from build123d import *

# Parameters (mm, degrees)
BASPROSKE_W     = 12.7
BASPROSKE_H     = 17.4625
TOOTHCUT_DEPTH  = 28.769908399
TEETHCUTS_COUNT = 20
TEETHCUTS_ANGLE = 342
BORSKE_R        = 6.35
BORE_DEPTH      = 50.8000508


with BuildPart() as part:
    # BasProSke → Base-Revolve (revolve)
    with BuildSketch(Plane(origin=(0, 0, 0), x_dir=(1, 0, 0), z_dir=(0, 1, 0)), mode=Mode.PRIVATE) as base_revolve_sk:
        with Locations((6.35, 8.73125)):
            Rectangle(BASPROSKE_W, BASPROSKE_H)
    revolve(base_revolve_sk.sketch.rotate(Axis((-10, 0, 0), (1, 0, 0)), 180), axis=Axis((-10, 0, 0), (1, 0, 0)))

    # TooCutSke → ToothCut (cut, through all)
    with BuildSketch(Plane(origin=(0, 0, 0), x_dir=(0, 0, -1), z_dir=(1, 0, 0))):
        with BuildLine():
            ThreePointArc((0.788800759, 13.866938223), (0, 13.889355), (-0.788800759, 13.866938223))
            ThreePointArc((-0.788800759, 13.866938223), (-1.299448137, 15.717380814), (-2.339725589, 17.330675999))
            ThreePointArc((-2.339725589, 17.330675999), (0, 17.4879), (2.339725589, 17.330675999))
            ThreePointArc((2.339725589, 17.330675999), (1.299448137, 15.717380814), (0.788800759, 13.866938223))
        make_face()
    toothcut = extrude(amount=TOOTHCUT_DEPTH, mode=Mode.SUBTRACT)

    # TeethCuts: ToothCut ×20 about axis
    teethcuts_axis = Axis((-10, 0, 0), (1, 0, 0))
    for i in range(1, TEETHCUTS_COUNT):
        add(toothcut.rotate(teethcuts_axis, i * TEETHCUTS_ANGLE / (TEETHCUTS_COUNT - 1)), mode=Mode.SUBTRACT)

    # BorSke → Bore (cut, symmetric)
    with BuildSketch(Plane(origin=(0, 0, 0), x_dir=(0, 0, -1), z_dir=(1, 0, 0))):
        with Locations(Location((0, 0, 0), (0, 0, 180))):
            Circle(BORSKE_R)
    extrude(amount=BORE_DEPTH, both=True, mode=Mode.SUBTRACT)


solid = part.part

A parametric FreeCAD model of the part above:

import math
import FreeCAD as App
import Part
import Sketcher
from FreeCAD import Vector
Q = App.Units.Quantity


def add_polygon(sketch, points):
    """Adds a closed chain of lines whose ends are joined by coincident constraints."""
    first, n = sketch.GeometryCount, len(points)
    for a, b in zip(points, points[1:] + points[:1]):
        sketch.addGeometry(Part.LineSegment(App.Vector(*a, 0), App.Vector(*b, 0)), False)
    for i in range(n):
        sketch.addConstraint(Sketcher.Constraint("Coincident", first + i, 2, first + (i + 1) % n, 1))

doc = App.newDocument("Part")
body = doc.addObject("PartDesign::Body", "Body")

sketch1 = body.newObject("Sketcher::SketchObject", "Sketch")
sketch1.AttachmentSupport = (doc.getObject("XZ_Plane"), [""])
sketch1.MapMode = "FlatFace"
add_polygon(sketch1, [(0, -17), (0, 0), (13, 0), (13, -17)])
sketch1.addConstraint([
    Sketcher.Constraint("Vertical", 0),
    Sketcher.Constraint("Horizontal", 1),
    Sketcher.Constraint("Vertical", 2),
    Sketcher.Constraint("Horizontal", 3),
    Sketcher.Constraint("Coincident", 0, 2, -1, 1),
    Sketcher.Constraint("DistanceX", 1, 1, 1, 2, Q("0.5 in")),
    Sketcher.Constraint("DistanceY", 0, 1, 0, 2, Q("0.6875 in")),
])
revolution = body.newObject("PartDesign::Revolution", "Revolution")
revolution.Profile = sketch1
revolution.ReferenceAxis = (sketch1, ["H_Axis"])
revolution.Angle = 360

sketch2 = body.newObject("Sketcher::SketchObject", "Sketch001")
sketch2.AttachmentSupport = (doc.getObject("YZ_Plane"), [""])
sketch2.MapMode = "FlatFace"
sketch2.addGeometry([
    Part.ArcOfCircle(Part.Circle(Vector(0, 0, 0), Vector(0, 0, 1), 13.9), math.radians(-3.26), math.radians(3.26)),
    Part.ArcOfCircle(Part.Circle(Vector(13.1, -7.1, 0), Vector(0, 0, 1), 6.3), math.radians(48), math.radians(83)),
    Part.ArcOfCircle(Part.Circle(Vector(0, 0, 0), Vector(0, 0, 1), 17.5), math.radians(-7.69), math.radians(7.69)),
    Part.ArcOfCircle(Part.Circle(Vector(13.1, 7.1, 0), Vector(0, 0, 1), 6.3), math.radians(-83), math.radians(-48)),
], False)
sketch2.addConstraint([
    Sketcher.Constraint("Coincident", 0, 1, 1, 2),
    Sketcher.Constraint("Coincident", 1, 1, 2, 1),
    Sketcher.Constraint("Coincident", 2, 2, 3, 2),
    Sketcher.Constraint("Coincident", 3, 1, 0, 2),
    Sketcher.Constraint("Coincident", 0, 3, -1, 1),
    Sketcher.Constraint("Coincident", 2, 3, -1, 1),
    Sketcher.Constraint("Equal", 1, 3),
    Sketcher.Constraint("Symmetric", 1, 3, 3, 3, -1),
    Sketcher.Constraint("Radius", 1, Q("0.25 in")),
    Sketcher.Constraint("Radius", 2, Q("0.6885 in")),
    Sketcher.Constraint("Radius", 0, Q("13.889355 mm")),
    Sketcher.Constraint("DistanceY", 0, 1, -1, 1, Q("0.788801 mm")),
    Sketcher.Constraint("DistanceY", 1, 3, 1, 1, Q("4.755271 mm")),
])
pocket1 = body.newObject("PartDesign::Pocket", "Pocket")
pocket1.Profile = sketch2
pocket1.Type = "ThroughAll"
pocket1.Reversed = True
doc.recompute()

polarpattern = body.newObject("PartDesign::PolarPattern", "PolarPattern")
polarpattern.Originals = [pocket1]
polarpattern.Axis = (doc.getObject("X_Axis"), [""])
polarpattern.Angle = 360
polarpattern.Occurrences = 20
body.Tip = polarpattern

sketch3 = body.newObject("Sketcher::SketchObject", "Sketch002")
sketch3.AttachmentSupport = (doc.getObject("YZ_Plane"), [""])
sketch3.MapMode = "FlatFace"
sketch3.addGeometry(Part.Circle(Vector(0, 0, 0), Vector(0, 0, 1), 6), False)
sketch3.addConstraint([
    Sketcher.Constraint("Coincident", 0, 3, -1, 1),
    Sketcher.Constraint("Diameter", 0, Q("0.5 in")),
])
pocket2 = body.newObject("PartDesign::Pocket", "Pocket001")
pocket2.Profile = sketch3
pocket2.Length = 101.600102
pocket2.Midplane = True

doc.recompute()
